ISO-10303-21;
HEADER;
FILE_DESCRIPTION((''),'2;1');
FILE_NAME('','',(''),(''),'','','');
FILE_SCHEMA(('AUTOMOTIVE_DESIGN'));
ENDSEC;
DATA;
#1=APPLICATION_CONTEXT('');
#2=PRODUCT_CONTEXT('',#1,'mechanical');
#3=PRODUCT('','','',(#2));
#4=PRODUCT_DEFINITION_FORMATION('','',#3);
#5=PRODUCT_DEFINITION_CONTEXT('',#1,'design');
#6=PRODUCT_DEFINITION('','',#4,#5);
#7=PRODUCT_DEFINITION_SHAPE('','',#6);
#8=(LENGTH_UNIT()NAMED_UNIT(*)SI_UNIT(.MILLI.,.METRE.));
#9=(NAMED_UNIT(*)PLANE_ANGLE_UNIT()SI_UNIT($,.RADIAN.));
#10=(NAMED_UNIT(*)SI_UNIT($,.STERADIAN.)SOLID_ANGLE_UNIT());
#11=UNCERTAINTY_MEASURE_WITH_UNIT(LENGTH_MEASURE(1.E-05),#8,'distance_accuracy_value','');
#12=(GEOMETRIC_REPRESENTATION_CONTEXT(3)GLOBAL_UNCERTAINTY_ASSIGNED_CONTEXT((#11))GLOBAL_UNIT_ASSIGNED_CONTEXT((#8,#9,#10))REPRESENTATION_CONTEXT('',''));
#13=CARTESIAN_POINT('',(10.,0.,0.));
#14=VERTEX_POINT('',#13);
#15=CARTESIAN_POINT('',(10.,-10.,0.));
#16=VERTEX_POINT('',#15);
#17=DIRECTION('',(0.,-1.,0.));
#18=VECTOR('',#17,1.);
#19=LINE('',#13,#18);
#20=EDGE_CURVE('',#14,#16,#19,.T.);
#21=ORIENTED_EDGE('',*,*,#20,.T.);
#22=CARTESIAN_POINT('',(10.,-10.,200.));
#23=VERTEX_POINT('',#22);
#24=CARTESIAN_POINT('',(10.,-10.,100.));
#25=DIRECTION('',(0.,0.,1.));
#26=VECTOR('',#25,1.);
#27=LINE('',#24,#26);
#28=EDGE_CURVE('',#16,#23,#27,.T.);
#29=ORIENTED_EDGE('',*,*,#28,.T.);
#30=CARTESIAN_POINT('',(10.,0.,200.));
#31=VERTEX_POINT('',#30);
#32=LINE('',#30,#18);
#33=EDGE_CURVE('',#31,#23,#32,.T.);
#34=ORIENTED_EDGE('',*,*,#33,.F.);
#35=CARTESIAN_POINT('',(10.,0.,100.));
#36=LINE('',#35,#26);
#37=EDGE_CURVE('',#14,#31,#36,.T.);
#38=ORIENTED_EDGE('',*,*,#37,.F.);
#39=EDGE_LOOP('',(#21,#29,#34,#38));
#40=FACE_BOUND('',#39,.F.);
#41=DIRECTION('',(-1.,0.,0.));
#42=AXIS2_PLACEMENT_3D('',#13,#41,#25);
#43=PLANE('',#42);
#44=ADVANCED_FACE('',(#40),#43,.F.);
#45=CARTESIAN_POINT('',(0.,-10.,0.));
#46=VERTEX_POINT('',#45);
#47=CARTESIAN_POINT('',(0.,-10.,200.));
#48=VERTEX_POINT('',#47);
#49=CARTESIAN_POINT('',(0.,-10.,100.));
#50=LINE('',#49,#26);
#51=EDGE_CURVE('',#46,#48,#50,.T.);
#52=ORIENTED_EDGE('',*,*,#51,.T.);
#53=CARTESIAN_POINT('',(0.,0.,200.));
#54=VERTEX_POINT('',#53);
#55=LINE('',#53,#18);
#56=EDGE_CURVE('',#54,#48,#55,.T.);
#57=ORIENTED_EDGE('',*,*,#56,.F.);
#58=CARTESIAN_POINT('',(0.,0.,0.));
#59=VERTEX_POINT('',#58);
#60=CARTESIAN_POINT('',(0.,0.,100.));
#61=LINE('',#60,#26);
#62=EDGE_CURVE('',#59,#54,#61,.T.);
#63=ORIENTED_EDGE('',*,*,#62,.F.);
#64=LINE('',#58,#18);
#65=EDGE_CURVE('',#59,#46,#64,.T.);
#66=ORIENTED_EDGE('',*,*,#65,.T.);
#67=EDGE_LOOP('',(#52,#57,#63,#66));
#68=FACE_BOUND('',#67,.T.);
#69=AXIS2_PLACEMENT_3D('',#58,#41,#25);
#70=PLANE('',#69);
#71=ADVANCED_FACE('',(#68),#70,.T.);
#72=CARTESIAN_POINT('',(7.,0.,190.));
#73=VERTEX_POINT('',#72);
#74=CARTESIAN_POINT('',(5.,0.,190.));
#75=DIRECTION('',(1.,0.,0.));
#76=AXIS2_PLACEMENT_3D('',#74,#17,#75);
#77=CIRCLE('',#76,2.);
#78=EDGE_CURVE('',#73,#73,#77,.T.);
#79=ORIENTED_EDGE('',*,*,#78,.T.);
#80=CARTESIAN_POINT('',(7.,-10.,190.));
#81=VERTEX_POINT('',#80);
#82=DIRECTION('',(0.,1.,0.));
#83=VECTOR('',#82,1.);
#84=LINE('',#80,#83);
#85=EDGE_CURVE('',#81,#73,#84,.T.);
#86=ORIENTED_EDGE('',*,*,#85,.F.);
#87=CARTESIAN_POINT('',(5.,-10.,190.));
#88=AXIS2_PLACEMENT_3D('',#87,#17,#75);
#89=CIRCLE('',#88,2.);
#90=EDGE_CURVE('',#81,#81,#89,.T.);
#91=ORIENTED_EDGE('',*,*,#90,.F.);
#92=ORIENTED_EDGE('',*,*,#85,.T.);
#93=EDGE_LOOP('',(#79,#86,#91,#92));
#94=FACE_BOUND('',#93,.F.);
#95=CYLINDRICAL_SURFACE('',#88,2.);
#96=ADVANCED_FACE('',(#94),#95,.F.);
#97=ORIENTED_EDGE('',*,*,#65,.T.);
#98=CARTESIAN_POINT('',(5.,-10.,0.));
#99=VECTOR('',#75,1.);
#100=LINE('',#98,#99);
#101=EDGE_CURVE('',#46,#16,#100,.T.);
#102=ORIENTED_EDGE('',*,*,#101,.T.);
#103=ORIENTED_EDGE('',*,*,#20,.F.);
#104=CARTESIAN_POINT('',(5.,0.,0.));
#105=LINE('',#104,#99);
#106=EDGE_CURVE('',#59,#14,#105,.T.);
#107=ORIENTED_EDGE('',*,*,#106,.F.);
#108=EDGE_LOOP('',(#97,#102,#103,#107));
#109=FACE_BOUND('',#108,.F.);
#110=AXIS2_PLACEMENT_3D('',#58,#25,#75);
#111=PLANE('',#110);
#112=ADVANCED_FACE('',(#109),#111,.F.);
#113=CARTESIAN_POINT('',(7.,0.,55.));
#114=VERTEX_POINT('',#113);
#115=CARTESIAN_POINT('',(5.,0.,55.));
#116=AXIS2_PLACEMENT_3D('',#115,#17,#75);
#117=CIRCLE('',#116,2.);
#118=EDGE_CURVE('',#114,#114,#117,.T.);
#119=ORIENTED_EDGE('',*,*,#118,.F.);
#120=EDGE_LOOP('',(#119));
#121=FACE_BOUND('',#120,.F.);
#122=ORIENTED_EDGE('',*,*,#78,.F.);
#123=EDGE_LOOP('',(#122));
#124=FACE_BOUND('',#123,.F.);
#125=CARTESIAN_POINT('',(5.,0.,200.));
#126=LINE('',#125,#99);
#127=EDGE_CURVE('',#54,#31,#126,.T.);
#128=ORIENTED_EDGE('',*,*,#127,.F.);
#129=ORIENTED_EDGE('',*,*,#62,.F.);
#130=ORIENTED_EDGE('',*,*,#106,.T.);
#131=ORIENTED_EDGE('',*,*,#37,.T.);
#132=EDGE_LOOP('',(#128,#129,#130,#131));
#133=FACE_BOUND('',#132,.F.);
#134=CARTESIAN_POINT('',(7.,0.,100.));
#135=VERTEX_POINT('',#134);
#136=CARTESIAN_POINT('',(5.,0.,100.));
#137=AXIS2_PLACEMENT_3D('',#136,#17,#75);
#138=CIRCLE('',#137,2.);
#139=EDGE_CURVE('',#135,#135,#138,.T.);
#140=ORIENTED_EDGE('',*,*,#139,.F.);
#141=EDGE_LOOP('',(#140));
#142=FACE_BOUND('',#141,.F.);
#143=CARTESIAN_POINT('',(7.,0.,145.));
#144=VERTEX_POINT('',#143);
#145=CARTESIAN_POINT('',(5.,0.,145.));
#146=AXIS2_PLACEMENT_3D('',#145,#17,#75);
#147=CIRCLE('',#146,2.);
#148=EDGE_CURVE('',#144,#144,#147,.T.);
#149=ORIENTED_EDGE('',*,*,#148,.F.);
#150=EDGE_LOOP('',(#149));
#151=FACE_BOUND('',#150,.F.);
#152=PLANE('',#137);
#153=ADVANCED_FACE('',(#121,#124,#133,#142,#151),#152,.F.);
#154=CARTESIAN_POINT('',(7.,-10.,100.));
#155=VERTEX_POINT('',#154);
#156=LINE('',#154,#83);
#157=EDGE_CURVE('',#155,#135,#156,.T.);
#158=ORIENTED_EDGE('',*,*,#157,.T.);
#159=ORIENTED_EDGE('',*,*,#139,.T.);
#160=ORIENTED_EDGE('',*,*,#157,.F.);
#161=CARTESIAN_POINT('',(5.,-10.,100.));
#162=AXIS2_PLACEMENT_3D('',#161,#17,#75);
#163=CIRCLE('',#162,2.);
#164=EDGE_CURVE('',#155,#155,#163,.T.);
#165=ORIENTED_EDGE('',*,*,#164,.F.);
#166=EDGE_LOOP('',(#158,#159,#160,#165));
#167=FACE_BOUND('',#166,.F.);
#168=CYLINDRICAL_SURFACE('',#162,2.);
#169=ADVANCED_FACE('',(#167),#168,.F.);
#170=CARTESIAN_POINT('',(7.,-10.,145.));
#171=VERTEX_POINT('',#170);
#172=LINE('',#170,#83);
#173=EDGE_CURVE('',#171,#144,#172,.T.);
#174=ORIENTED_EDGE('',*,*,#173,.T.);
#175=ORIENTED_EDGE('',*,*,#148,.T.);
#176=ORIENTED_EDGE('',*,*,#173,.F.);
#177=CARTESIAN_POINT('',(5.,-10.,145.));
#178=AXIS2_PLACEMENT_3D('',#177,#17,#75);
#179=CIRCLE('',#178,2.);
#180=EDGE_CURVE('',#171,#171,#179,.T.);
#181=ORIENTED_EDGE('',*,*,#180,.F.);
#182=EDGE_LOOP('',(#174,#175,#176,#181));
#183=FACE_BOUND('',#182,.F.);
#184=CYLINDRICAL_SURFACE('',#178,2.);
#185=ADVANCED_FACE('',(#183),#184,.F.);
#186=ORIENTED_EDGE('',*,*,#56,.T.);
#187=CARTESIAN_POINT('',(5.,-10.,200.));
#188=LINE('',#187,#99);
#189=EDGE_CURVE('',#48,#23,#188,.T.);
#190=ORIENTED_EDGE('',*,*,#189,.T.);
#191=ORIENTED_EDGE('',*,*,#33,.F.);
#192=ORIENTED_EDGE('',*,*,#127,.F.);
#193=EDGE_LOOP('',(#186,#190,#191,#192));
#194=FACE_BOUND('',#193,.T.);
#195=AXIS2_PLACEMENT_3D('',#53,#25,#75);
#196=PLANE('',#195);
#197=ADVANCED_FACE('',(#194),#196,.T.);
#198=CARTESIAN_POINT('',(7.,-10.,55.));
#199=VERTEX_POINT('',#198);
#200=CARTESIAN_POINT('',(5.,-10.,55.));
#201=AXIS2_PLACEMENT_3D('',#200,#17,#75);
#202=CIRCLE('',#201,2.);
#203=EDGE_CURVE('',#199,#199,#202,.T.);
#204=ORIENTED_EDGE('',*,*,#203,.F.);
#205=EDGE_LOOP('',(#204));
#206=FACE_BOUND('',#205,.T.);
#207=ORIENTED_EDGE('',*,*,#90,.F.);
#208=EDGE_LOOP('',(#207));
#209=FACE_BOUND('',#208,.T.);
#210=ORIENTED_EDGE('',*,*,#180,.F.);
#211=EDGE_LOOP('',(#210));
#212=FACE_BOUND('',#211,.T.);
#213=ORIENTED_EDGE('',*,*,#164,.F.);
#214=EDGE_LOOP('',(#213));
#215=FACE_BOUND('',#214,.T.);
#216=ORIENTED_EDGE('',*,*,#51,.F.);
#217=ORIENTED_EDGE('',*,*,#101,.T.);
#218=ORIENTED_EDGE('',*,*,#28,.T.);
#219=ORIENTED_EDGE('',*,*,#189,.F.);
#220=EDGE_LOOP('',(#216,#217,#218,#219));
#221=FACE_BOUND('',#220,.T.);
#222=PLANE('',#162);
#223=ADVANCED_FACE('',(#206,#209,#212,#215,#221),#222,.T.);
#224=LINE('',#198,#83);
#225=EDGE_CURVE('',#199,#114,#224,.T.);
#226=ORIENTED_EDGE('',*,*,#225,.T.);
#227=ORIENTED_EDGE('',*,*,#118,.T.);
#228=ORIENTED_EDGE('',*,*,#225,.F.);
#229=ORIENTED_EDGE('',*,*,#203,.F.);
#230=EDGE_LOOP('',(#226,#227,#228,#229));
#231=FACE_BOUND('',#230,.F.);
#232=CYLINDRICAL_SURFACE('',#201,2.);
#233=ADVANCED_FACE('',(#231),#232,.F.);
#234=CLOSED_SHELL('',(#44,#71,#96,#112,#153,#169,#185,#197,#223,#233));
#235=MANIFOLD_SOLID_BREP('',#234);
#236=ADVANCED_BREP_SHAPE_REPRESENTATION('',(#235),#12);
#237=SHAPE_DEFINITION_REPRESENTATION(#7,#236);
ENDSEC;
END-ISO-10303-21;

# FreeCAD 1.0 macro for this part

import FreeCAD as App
import Part
import Sketcher
Q = App.Units.Quantity

doc = App.newDocument("Part")
params = doc.addObject("Spreadsheet::Sheet", "Params")
for row, (alias, value) in enumerate([
    ("sketch1_width", "10 mm"),
    ("sketch1_height", "200 mm"),
    ("pad1_length", "10 mm"),
    ("sketch2_diameter", "4 mm"),
], start=1):
    params.set(f"A{row}", alias)
    params.set(f"B{row}", "=" + value)
    params.setAlias(f"B{row}", alias)

body = doc.addObject("PartDesign::Body", "Body")

sketch1 = body.newObject("Sketcher::SketchObject", "Sketch")
sketch1.AttachmentSupport = (doc.getObject("XZ_Plane"), [""])
sketch1.MapMode = "FlatFace"
sketch1.addGeometry([
    Part.LineSegment(App.Vector(0, 200, 0), App.Vector(0, 0, 0)),
    Part.LineSegment(App.Vector(0, 0, 0), App.Vector(10, 0, 0)),
    Part.LineSegment(App.Vector(10, 0, 0), App.Vector(10, 200, 0)),
    Part.LineSegment(App.Vector(10, 200, 0), App.Vector(0, 200, 0)),
], False)
sketch1.addConstraint([
    Sketcher.Constraint("Coincident", 0, 2, 1, 1),
    Sketcher.Constraint("Coincident", 1, 2, 2, 1),
    Sketcher.Constraint("Coincident", 2, 2, 3, 1),
    Sketcher.Constraint("Coincident", 3, 2, 0, 1),
    Sketcher.Constraint("Vertical", 0),
    Sketcher.Constraint("Horizontal", 1),
    Sketcher.Constraint("Vertical", 2),
    Sketcher.Constraint("Horizontal", 3),
    Sketcher.Constraint("Coincident", 0, 2, -1, 1),
    Sketcher.Constraint("DistanceX", 1, 1, 1, 2, Q("10 mm")),
    Sketcher.Constraint("DistanceY", 0, 2, 0, 1, Q("200 mm")),
])
sketch1.setExpression("Constraints[9]", "Params.sketch1_width")
sketch1.setExpression("Constraints[10]", "Params.sketch1_height")
pad1 = body.newObject("PartDesign::Pad", "Pad")
pad1.Profile = sketch1
pad1.setExpression("Length", "Params.pad1_length")

sketch2 = body.newObject("Sketcher::SketchObject", "Sketch001")
sketch2.AttachmentSupport = (doc.getObject("XZ_Plane"), [""])
sketch2.MapMode = "FlatFace"
sketch2.AttachmentOffset = App.Placement(App.Vector(0, 0, 10), App.Rotation())
sketch2.addGeometry([
    Part.Circle(App.Vector(5, 190, 0), App.Vector(0, 0, 1), 2),
    Part.Circle(App.Vector(5, 145, 0), App.Vector(0, 0, 1), 2),
    Part.Circle(App.Vector(5, 100, 0), App.Vector(0, 0, 1), 2),
    Part.Circle(App.Vector(5, 55, 0), App.Vector(0, 0, 1), 2),
], False)
sketch2.addConstraint([
    Sketcher.Constraint("Equal", 0, 1),
    Sketcher.Constraint("Equal", 1, 2),
    Sketcher.Constraint("Equal", 2, 3),
    Sketcher.Constraint("Vertical", 0, 3, 1, 3),
    Sketcher.Constraint("Vertical", 1, 3, 2, 3),
    Sketcher.Constraint("Vertical", 2, 3, 3, 3),
    Sketcher.Constraint("Diameter", 0, Q("4 mm")),
    Sketcher.Constraint("DistanceX", -1, 1, 0, 3, Q("5 mm")),
    Sketcher.Constraint("DistanceY", -1, 1, 0, 3, Q("190 mm")),
    Sketcher.Constraint("DistanceY", -1, 1, 1, 3, Q("145 mm")),
    Sketcher.Constraint("DistanceY", -1, 1, 2, 3, Q("100 mm")),
    Sketcher.Constraint("DistanceY", -1, 1, 3, 3, Q("55 mm")),
])
sketch2.setExpression("Constraints[6]", "Params.sketch2_diameter")
pocket1 = body.newObject("PartDesign::Pocket", "Pocket")
pocket1.Profile = sketch2
pocket1.Type = "ThroughAll"

doc.recompute()
